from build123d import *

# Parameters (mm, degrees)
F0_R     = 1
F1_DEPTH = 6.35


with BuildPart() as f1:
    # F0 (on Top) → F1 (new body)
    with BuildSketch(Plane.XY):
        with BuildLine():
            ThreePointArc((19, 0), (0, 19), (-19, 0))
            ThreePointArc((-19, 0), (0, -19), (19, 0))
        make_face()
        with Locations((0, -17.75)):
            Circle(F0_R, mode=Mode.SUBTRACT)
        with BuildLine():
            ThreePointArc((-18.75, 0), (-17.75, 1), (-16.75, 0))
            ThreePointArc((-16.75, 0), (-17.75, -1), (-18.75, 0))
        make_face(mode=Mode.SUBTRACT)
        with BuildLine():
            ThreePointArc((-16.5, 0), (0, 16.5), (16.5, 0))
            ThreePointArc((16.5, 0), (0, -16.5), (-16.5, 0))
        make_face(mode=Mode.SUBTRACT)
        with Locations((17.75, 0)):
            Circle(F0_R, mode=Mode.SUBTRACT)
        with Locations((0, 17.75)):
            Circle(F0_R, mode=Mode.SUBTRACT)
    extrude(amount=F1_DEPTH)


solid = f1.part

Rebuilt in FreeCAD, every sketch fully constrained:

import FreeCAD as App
import Part
import Sketcher
Q = App.Units.Quantity

doc = App.newDocument("Part")
body = doc.addObject("PartDesign::Body", "Body")

sketch1 = doc.addObject("Sketcher::SketchObject", "Sketch")
body.addObject(sketch1)
sketch1.AttachmentSupport = (doc.XY_Plane, [""])
sketch1.MapMode = "FlatFace"
sketch1.addGeometry([
    Part.Circle(App.Vector(0, 0, 0), App.Vector(0, 0, 1), 19),
    Part.Circle(App.Vector(0, -17.75, 0), App.Vector(0, 0, 1), 1),
    Part.Circle(App.Vector(-17.75, 0, 0), App.Vector(0, 0, 1), 1),
    Part.Circle(App.Vector(0, 0, 0), App.Vector(0, 0, 1), 16.5),
    Part.Circle(App.Vector(17.75, 0, 0), App.Vector(0, 0, 1), 1),
    Part.Circle(App.Vector(0, 17.75, 0), App.Vector(0, 0, 1), 1),
], False)
sketch1.addConstraint([
    Sketcher.Constraint("Coincident", 0, 3, -1, 1),
    Sketcher.Constraint("Coincident", 3, 3, -1, 1),
    Sketcher.Constraint("Equal", 1, 2),
    Sketcher.Constraint("Equal", 2, 4),
    Sketcher.Constraint("Equal", 4, 5),
    Sketcher.Constraint("Symmetric", 2, 3, 4, 3, -1, 1),
    Sketcher.Constraint("Symmetric", 1, 3, 5, 3, -1, 1),
    Sketcher.Constraint("PointOnObject", 1, 3, -2),
    Sketcher.Constraint("PointOnObject", 2, 3, -1),
    Sketcher.Constraint("Diameter", 0, Q("38 mm")),
    Sketcher.Constraint("Diameter", 1, Q("2 mm")),
    Sketcher.Constraint("Diameter", 3, Q("33 mm")),
    Sketcher.Constraint("DistanceX", 2, 3, 4, 3, Q("35.5 mm")),
    Sketcher.Constraint("DistanceY", 1, 3, 5, 3, Q("35.5 mm")),
])
pad1 = doc.addObject("PartDesign::Pad", "Pad")
body.addObject(pad1)
pad1.Profile = sketch1
pad1.Length = 6.35

doc.recompute()
